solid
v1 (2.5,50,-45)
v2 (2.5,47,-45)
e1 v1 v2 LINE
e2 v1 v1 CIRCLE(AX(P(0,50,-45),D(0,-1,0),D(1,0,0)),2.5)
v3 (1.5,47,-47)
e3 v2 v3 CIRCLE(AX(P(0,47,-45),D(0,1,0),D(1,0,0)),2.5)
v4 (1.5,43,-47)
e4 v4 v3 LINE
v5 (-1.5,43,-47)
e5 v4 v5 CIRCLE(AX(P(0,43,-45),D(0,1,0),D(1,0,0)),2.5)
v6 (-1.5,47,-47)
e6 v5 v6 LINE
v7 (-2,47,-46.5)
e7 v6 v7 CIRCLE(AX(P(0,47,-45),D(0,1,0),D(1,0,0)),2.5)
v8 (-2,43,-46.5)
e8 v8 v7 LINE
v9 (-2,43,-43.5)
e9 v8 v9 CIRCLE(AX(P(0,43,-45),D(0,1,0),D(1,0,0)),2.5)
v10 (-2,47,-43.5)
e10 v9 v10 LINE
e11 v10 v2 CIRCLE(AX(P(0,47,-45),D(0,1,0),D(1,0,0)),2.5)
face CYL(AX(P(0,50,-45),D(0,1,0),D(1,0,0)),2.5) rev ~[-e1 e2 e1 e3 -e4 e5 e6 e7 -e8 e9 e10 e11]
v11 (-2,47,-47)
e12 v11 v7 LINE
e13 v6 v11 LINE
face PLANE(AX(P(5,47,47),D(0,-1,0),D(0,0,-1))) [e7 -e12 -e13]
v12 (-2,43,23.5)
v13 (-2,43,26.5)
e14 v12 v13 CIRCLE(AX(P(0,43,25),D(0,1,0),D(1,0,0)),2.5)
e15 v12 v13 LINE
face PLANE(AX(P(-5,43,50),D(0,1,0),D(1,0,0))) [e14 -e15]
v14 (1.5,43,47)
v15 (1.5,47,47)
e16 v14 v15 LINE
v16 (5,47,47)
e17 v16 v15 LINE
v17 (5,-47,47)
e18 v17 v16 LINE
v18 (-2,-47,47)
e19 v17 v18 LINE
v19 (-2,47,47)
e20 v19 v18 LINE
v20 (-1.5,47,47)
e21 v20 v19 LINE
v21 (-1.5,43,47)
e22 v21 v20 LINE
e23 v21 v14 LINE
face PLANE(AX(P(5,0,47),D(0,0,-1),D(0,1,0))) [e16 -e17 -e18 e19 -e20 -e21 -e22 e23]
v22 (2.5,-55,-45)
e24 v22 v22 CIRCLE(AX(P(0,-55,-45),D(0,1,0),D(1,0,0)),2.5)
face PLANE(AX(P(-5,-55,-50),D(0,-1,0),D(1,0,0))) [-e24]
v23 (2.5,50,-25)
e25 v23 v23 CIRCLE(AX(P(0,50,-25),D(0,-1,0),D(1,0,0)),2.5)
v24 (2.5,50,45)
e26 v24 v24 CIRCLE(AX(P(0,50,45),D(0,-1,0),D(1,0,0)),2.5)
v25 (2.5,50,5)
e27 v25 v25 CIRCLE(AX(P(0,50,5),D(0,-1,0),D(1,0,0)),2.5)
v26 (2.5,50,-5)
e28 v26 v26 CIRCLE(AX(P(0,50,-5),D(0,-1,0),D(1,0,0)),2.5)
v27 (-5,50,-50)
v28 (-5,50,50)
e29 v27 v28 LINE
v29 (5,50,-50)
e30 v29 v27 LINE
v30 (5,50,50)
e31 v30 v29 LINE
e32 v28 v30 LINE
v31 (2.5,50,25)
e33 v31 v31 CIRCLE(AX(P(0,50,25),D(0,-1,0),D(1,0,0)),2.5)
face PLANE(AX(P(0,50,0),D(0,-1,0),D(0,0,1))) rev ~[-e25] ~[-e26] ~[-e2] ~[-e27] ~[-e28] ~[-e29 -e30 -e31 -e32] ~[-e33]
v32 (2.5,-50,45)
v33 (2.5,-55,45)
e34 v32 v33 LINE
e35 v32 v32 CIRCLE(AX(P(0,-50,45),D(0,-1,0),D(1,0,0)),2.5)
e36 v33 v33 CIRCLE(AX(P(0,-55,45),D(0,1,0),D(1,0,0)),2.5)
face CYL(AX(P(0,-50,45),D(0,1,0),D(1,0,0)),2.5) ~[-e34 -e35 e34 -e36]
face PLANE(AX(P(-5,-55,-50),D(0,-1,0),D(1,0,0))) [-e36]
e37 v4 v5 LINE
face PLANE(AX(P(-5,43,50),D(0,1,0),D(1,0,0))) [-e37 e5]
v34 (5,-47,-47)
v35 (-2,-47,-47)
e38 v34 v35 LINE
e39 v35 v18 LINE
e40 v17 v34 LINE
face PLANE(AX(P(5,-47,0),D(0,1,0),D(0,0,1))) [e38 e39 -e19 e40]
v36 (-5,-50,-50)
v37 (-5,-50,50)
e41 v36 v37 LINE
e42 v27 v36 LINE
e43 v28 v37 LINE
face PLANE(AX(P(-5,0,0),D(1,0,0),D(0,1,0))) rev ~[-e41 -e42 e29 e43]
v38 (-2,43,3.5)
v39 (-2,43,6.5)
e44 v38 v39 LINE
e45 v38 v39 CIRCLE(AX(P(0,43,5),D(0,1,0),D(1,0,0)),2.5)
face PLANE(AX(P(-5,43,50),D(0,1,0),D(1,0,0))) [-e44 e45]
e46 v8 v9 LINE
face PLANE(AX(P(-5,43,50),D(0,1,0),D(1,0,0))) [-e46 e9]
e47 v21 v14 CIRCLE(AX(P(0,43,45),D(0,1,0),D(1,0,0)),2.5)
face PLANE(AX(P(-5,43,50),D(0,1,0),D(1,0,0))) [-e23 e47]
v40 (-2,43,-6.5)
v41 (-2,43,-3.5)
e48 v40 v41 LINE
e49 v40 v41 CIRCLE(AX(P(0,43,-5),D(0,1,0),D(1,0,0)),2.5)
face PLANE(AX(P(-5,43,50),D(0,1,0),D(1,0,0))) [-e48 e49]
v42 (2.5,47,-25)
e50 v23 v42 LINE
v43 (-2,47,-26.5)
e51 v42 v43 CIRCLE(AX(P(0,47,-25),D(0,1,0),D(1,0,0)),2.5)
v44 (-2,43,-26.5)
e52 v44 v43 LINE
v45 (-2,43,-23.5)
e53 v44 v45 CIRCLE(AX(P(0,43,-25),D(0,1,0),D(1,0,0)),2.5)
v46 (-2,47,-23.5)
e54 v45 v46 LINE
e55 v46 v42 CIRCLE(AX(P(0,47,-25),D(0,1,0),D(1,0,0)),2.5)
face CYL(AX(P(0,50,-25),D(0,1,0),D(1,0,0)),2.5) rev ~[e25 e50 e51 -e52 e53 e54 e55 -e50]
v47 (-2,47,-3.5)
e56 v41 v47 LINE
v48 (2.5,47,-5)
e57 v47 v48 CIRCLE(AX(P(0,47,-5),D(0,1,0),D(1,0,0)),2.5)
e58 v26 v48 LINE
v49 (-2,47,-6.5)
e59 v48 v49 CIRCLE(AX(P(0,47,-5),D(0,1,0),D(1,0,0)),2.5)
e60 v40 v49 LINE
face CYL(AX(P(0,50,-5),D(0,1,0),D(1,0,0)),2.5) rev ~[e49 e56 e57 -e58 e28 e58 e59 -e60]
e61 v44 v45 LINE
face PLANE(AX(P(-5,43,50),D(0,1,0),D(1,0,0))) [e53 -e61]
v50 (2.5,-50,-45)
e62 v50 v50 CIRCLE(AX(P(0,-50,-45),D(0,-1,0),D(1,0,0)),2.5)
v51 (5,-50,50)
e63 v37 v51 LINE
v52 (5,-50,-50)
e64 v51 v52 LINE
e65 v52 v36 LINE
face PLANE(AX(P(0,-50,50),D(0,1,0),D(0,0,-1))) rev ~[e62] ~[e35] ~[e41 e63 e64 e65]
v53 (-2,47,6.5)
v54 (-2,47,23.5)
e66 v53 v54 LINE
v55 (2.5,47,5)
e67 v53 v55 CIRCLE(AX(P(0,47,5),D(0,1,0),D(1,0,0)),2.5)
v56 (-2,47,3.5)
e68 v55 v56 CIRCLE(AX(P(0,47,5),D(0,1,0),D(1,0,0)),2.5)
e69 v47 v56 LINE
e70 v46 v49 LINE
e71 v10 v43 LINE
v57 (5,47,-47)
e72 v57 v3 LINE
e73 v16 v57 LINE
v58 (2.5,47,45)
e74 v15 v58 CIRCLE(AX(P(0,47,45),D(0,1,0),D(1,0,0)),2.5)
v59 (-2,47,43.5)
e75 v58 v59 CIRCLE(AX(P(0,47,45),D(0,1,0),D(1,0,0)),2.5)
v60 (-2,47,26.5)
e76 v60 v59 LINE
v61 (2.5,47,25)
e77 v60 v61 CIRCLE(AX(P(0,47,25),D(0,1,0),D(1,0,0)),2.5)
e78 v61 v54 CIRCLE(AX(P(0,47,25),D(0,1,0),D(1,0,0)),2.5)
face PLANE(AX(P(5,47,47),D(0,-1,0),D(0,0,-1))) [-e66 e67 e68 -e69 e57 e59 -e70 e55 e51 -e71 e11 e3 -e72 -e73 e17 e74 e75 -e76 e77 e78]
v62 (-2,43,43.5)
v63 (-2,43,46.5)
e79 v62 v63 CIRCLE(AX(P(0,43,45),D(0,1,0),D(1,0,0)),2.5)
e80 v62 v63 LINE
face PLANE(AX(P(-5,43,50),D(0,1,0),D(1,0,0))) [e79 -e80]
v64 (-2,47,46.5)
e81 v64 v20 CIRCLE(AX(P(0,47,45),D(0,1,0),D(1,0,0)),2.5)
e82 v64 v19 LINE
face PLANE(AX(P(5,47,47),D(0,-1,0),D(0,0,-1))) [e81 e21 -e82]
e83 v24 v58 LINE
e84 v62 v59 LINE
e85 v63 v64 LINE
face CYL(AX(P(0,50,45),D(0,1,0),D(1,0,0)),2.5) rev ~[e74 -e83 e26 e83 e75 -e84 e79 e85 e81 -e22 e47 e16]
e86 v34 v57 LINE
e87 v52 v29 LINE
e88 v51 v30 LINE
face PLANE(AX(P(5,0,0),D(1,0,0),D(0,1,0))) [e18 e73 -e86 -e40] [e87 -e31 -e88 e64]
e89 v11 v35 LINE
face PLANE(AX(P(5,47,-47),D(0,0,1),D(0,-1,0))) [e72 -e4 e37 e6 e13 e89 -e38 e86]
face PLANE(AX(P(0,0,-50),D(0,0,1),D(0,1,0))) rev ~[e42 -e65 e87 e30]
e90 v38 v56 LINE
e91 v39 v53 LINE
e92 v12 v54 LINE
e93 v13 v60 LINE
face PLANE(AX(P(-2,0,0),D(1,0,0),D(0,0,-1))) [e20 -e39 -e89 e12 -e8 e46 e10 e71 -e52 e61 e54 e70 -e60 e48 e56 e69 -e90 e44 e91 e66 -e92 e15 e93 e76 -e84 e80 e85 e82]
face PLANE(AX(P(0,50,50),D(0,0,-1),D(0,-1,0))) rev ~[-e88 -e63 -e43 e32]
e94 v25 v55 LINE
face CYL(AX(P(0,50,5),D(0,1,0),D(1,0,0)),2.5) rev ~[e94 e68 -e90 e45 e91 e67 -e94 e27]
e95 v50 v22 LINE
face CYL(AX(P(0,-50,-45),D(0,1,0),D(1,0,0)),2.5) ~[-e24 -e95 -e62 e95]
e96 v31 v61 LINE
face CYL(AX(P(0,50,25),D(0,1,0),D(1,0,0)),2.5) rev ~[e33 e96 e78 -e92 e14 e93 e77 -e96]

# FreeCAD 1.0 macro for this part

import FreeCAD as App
import Part
import Sketcher

V = App.Vector
Q = App.Units.Quantity


def add_polygon(sketch, points):
    """Adds a closed chain of lines whose ends are joined by coincident constraints."""
    first, n = sketch.GeometryCount, len(points)
    for a, b in zip(points, points[1:] + points[:1]):
        sketch.addGeometry(Part.LineSegment(App.Vector(*a, 0), App.Vector(*b, 0)), False)
    for i in range(n):
        sketch.addConstraint(Sketcher.Constraint("Coincident", first + i, 2, first + (i + 1) % n, 1))

doc = App.newDocument("Part")
body = doc.addObject("PartDesign::Body", "Body")

sketch1 = body.newObject("Sketcher::SketchObject", "Sketch")
sketch1.AttachmentSupport = (doc.getObject("YZ_Plane"), [""])
sketch1.MapMode = "FlatFace"
add_polygon(sketch1, [(50, 50), (-50, 50), (-50, -50), (50, -50)])
sketch1.addConstraint(Sketcher.Constraint("Horizontal", 0))
sketch1.addConstraint(Sketcher.Constraint("Vertical", 1))
sketch1.addConstraint(Sketcher.Constraint("Horizontal", 2))
sketch1.addConstraint(Sketcher.Constraint("Vertical", 3))
sketch1.addConstraint(Sketcher.Constraint("Symmetric", 0, 2, 2, 2, -1, 1))
sketch1.addConstraint(Sketcher.Constraint("Equal", 2, 1))
sketch1.addConstraint(Sketcher.Constraint("DistanceX", 0, 2, 0, 1, Q("100 mm")))
pad1 = body.newObject("PartDesign::Pad", "Pad")
pad1.Profile = sketch1
pad1.Length = 10
pad1.Midplane = True

sketch2 = body.newObject("Sketcher::SketchObject", "Sketch001")
sketch2.AttachmentSupport = (doc.getObject("YZ_Plane"), [""])
sketch2.MapMode = "FlatFace"
sketch2.AttachmentOffset = App.Placement(V(0, 0, 5), App.Rotation())
add_polygon(sketch2, [(47, 47), (-47, 47), (-47, -47), (47, -47)])
sketch2.addConstraint(Sketcher.Constraint("Horizontal", 0))
sketch2.addConstraint(Sketcher.Constraint("Vertical", 1))
sketch2.addConstraint(Sketcher.Constraint("Horizontal", 2))
sketch2.addConstraint(Sketcher.Constraint("Vertical", 3))
sketch2.addConstraint(Sketcher.Constraint("Symmetric", 0, 2, 2, 2, -1, 1))
sketch2.addConstraint(Sketcher.Constraint("Equal", 2, 1))
sketch2.addConstraint(Sketcher.Constraint("DistanceX", 0, 2, 0, 1, Q("94 mm")))
pocket1 = body.newObject("PartDesign::Pocket", "Pocket")
pocket1.Profile = sketch2
pocket1.Length = 7

sketch3 = body.newObject("Sketcher::SketchObject", "Sketch002")
sketch3.AttachmentSupport = (doc.getObject("XZ_Plane"), [""])
sketch3.MapMode = "FlatFace"
sketch3.AttachmentOffset = App.Placement(V(0, 0, -50), App.Rotation())
sketch3.addGeometry(Part.Circle(V(0, 45, 0), V(0, 0, 1), 2.5), False)
sketch3.addGeometry(Part.Circle(V(0, -45, 0), V(0, 0, 1), 2.5), False)
sketch3.addGeometry(Part.Circle(V(0, -25, 0), V(0, 0, 1), 2.5), False)
sketch3.addGeometry(Part.Circle(V(0, -5, 0), V(0, 0, 1), 2.5), False)
sketch3.addGeometry(Part.Circle(V(0, 5, 0), V(0, 0, 1), 2.5), False)
sketch3.addGeometry(Part.Circle(V(0, 25, 0), V(0, 0, 1), 2.5), False)
sketch3.addConstraint(Sketcher.Constraint("Equal", 0, 1))
sketch3.addConstraint(Sketcher.Constraint("Equal", 1, 2))
sketch3.addConstraint(Sketcher.Constraint("Equal", 2, 3))
sketch3.addConstraint(Sketcher.Constraint("Equal", 3, 4))
sketch3.addConstraint(Sketcher.Constraint("Equal", 4, 5))
sketch3.addConstraint(Sketcher.Constraint("Symmetric", 0, 3, 1, 3, -1, 1))
sketch3.addConstraint(Sketcher.Constraint("Symmetric", 3, 3, 4, 3, -1, 1))
sketch3.addConstraint(Sketcher.Constraint("Symmetric", 2, 3, 5, 3, -1, 1))
sketch3.addConstraint(Sketcher.Constraint("PointOnObject", 0, 3, -2))
sketch3.addConstraint(Sketcher.Constraint("PointOnObject", 2, 3, -2))
sketch3.addConstraint(Sketcher.Constraint("PointOnObject", 3, 3, -2))
sketch3.addConstraint(Sketcher.Constraint("Diameter", 0, Q("5 mm")))
sketch3.addConstraint(Sketcher.Constraint("DistanceY", 3, 3, -1, 1, Q("5 mm")))
sketch3.addConstraint(Sketcher.Constraint("DistanceY", 1, 3, 2, 3, Q("20 mm")))
sketch3.addConstraint(Sketcher.Constraint("DistanceY", 2, 3, 3, 3, Q("20 mm")))
pocket2 = body.newObject("PartDesign::Pocket", "Pocket001")
pocket2.Profile = sketch3
pocket2.Length = 7
pocket2.Reversed = True

sketch4 = body.newObject("Sketcher::SketchObject", "Sketch003")
sketch4.AttachmentSupport = (doc.getObject("XZ_Plane"), [""])
sketch4.MapMode = "FlatFace"
sketch4.AttachmentOffset = App.Placement(V(0, 0, 50), App.Rotation())
sketch4.addGeometry(Part.Circle(V(0, 45, 0), V(0, 0, 1), 2.5), False)
sketch4.addGeometry(Part.Circle(V(0, -45, 0), V(0, 0, 1), 2.5), False)
sketch4.addConstraint(Sketcher.Constraint("Equal", 0, 1))
sketch4.addConstraint(Sketcher.Constraint("Symmetric", 0, 3, 1, 3, -1, 1))
sketch4.addConstraint(Sketcher.Constraint("PointOnObject", 0, 3, -2))
sketch4.addConstraint(Sketcher.Constraint("Diameter", 0, Q("5 mm")))
sketch4.addConstraint(Sketcher.Constraint("DistanceY", -1, 1, 0, 3, Q("45 mm")))
pad2 = body.newObject("PartDesign::Pad", "Pad001")
pad2.Profile = sketch4
pad2.Length = 5

doc.recompute()
